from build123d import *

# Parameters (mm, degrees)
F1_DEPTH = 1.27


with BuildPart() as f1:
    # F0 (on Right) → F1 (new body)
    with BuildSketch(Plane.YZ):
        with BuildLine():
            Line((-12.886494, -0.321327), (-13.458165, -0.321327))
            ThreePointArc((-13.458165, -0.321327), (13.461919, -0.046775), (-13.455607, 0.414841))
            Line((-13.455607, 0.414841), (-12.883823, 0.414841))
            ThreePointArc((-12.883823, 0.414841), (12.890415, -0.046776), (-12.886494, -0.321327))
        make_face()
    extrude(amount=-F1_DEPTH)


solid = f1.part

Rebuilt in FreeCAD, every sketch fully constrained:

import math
import FreeCAD as App
import Part
import Sketcher

V = App.Vector
Q = App.Units.Quantity

doc = App.newDocument("Part")
body = doc.addObject("PartDesign::Body", "Body")

# Sketch on YZ plane
sketch1 = doc.addObject("Sketcher::SketchObject", "Sketch")
body.addObject(sketch1)
sketch1.AttachmentSupport = (doc.YZ_Plane, [""])
sketch1.MapMode = "FlatFace"
sketch1.addGeometry([
    Part.LineSegment(V(-12.886494, -0.321327, 0), V(-13.458165, -0.321327, 0)),
    Part.ArcOfCircle(Part.Circle(V(0, -0.000002, 0), V(0, 0, 1), 13.462), math.radians(-178.632276), math.radians(178.234101)),
    Part.LineSegment(V(-13.455607, 0.414841, 0), V(-12.883823, 0.414841, 0)),
    Part.ArcOfCircle(Part.Circle(V(0, 0.000006, 0), V(0, 0, 1), 12.8905), math.radians(-178.571587), math.radians(178.155822)),
], False)
sketch1.addConstraint([
    Sketcher.Constraint("Coincident", 0, 2, 1, 1),
    Sketcher.Constraint("Coincident", 1, 2, 2, 1),
    Sketcher.Constraint("Coincident", 2, 2, 3, 2),
    Sketcher.Constraint("Coincident", 3, 1, 0, 1),
    Sketcher.Constraint("Horizontal", 0),
    Sketcher.Constraint("Horizontal", 2),
    Sketcher.Constraint("Coincident", 1, 3, -1, 1),
    Sketcher.Constraint("Coincident", 3, 3, -1, 1),
    Sketcher.Constraint("Radius", 1, Q("0.53 in")),
    Sketcher.Constraint("Radius", 3, Q("0.5075 in")),
    Sketcher.Constraint("DistanceY", -1, 1, 1, 2, 0.414841),
    Sketcher.Constraint("DistanceX", 0, 2, 1, 2, 0.002558),
])
pad1 = doc.addObject("PartDesign::Pad", "Pad")
body.addObject(pad1)
pad1.Profile = sketch1
pad1.Length = Q("0.05 in")
pad1.Reversed = True

doc.recompute()
